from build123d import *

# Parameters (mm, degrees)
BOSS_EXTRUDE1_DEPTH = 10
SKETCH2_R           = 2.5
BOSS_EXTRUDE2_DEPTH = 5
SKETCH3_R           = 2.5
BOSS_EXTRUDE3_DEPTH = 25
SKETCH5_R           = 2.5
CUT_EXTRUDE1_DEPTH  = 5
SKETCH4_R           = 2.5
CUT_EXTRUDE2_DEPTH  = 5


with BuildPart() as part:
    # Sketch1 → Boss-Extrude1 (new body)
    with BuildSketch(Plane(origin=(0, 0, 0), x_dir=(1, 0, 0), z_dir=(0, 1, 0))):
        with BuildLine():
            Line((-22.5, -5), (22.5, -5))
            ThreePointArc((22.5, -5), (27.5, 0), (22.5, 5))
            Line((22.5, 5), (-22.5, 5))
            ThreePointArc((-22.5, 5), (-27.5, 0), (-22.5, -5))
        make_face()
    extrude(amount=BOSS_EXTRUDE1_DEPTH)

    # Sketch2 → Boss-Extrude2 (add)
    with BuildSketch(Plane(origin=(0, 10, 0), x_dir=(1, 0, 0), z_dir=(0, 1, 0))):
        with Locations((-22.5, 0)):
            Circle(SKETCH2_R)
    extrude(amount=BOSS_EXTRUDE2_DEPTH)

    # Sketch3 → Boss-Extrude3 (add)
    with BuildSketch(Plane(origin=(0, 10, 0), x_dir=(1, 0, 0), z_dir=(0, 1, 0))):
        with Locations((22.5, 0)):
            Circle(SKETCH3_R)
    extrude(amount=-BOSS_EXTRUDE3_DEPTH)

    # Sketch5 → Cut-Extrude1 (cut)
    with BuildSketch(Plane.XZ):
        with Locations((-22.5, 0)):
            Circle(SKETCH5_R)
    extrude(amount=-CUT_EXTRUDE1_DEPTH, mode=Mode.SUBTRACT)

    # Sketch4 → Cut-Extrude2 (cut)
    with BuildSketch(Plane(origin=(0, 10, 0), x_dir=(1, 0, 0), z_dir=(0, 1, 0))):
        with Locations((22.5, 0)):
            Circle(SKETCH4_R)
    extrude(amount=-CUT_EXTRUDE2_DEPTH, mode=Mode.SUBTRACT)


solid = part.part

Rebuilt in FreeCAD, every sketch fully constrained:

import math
import FreeCAD as App
import Part
import Sketcher

V = App.Vector

doc = App.newDocument("Part")
body = doc.addObject("PartDesign::Body", "Body")

# Sketch on XZ plane
sketch1 = body.newObject("Sketcher::SketchObject", "Sketch")
sketch1.AttachmentSupport = (doc.getObject("XZ_Plane"), [""])
sketch1.MapMode = "FlatFace"
sketch1.addGeometry(Part.LineSegment(V(-22, 5, 0), V(22, 5, 0)), False)
sketch1.addGeometry(Part.ArcOfCircle(Part.Circle(V(22, 0, 0), V(0, 0, 1), 5), math.radians(-90), math.radians(90)), False)
sketch1.addGeometry(Part.LineSegment(V(22, -5, 0), V(-22, -5, 0)), False)
sketch1.addGeometry(Part.ArcOfCircle(Part.Circle(V(-22, 0, 0), V(0, 0, 1), 5), math.radians(90), math.radians(270)), False)
sketch1.addConstraint(Sketcher.Constraint("Tangent", 0, 2, 1, 2))
sketch1.addConstraint(Sketcher.Constraint("Tangent", 1, 1, 2, 1))
sketch1.addConstraint(Sketcher.Constraint("Tangent", 2, 2, 3, 2))
sketch1.addConstraint(Sketcher.Constraint("Tangent", 3, 1, 0, 1))
sketch1.addConstraint(Sketcher.Constraint("Horizontal", 0))
sketch1.addConstraint(Sketcher.Constraint("Horizontal", 2))
sketch1.addConstraint(Sketcher.Constraint("Symmetric", 1, 3, 3, 3, -1, 1))
sketch1.addConstraint(Sketcher.Constraint("Radius", 1, 5.0))
sketch1.addConstraint(Sketcher.Constraint("DistanceX", 0, 1, 0, 2, 45.0))
pad1 = body.newObject("PartDesign::Pad", "Pad")
pad1.Profile = sketch1
pad1.Length = 10
pad1.Reversed = True

# Sketch on XZ plane
sketch2 = body.newObject("Sketcher::SketchObject", "Sketch001")
sketch2.AttachmentSupport = (doc.getObject("XZ_Plane"), [""])
sketch2.MapMode = "FlatFace"
sketch2.AttachmentOffset = App.Placement(V(0, 0, -10), App.Rotation())
sketch2.addGeometry(Part.Circle(V(-22.5, 0, 0), V(0, 0, 1), 2.5), False)
sketch2.addConstraint(Sketcher.Constraint("PointOnObject", 0, 3, -1))
sketch2.addConstraint(Sketcher.Constraint("Diameter", 0, 5.0))
sketch2.addConstraint(Sketcher.Constraint("DistanceX", 0, 3, -1, 1, 22.5))
pad2 = body.newObject("PartDesign::Pad", "Pad001")
pad2.Profile = sketch2
pad2.Length = 5
pad2.Reversed = True

# Sketch on XZ plane
sketch3 = body.newObject("Sketcher::SketchObject", "Sketch002")
sketch3.AttachmentSupport = (doc.getObject("XZ_Plane"), [""])
sketch3.MapMode = "FlatFace"
sketch3.AttachmentOffset = App.Placement(V(0, 0, -10), App.Rotation())
sketch3.addGeometry(Part.Circle(V(22.5, 0, 0), V(0, 0, 1), 2.5), False)
sketch3.addConstraint(Sketcher.Constraint("PointOnObject", 0, 3, -1))
sketch3.addConstraint(Sketcher.Constraint("Diameter", 0, 5.0))
sketch3.addConstraint(Sketcher.Constraint("DistanceX", -1, 1, 0, 3, 22.5))
pad3 = body.newObject("PartDesign::Pad", "Pad002")
pad3.Profile = sketch3
pad3.Length = 25

# Sketch on XZ plane
sketch4 = body.newObject("Sketcher::SketchObject", "Sketch003")
sketch4.AttachmentSupport = (doc.getObject("XZ_Plane"), [""])
sketch4.MapMode = "FlatFace"
sketch4.addGeometry(Part.Circle(V(-22.5, 0, 0), V(0, 0, 1), 2.5), False)
sketch4.addConstraint(Sketcher.Constraint("PointOnObject", 0, 3, -1))
sketch4.addConstraint(Sketcher.Constraint("Diameter", 0, 5.0))
sketch4.addConstraint(Sketcher.Constraint("DistanceX", 0, 3, -1, 1, 22.5))
pocket1 = body.newObject("PartDesign::Pocket", "Pocket")
pocket1.Profile = sketch4
pocket1.Length = 5

# Sketch on XZ plane
sketch5 = body.newObject("Sketcher::SketchObject", "Sketch004")
sketch5.AttachmentSupport = (doc.getObject("XZ_Plane"), [""])
sketch5.MapMode = "FlatFace"
sketch5.AttachmentOffset = App.Placement(V(0, 0, -10), App.Rotation())
sketch5.addGeometry(Part.Circle(V(22.5, 0, 0), V(0, 0, 1), 2.5), False)
sketch5.addConstraint(Sketcher.Constraint("PointOnObject", 0, 3, -1))
sketch5.addConstraint(Sketcher.Constraint("Diameter", 0, 5.0))
sketch5.addConstraint(Sketcher.Constraint("DistanceX", -1, 1, 0, 3, 22.5))
pocket2 = body.newObject("PartDesign::Pocket", "Pocket001")
pocket2.Profile = sketch5
pocket2.Length = 5
pocket2.Reversed = True

doc.recompute()
